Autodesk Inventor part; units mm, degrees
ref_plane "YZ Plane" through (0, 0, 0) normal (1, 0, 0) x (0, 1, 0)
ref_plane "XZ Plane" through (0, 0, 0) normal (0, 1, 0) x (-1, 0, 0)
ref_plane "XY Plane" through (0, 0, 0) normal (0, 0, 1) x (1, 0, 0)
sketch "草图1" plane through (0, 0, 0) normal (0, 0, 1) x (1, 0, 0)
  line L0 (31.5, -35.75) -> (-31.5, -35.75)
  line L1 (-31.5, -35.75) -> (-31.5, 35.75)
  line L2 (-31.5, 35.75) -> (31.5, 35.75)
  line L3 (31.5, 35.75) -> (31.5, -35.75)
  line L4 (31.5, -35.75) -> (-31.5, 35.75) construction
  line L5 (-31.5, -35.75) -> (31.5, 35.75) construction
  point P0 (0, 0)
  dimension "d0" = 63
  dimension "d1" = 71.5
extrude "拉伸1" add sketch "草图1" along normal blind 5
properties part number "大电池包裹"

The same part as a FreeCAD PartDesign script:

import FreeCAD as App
import Part
import Sketcher
from FreeCAD import Vector
Q = App.Units.Quantity

doc = App.newDocument("Part")
body = doc.addObject("PartDesign::Body", "Body")

sketch1 = body.newObject("Sketcher::SketchObject", "Sketch")
sketch1.AttachmentSupport = (doc.getObject("XY_Plane"), [""])
sketch1.MapMode = "FlatFace"
sketch1.addGeometry([
    Part.LineSegment(Vector(-32, -36, 0), Vector(32, -36, 0)),
    Part.LineSegment(Vector(32, -36, 0), Vector(32, 36, 0)),
    Part.LineSegment(Vector(32, 36, 0), Vector(-32, 36, 0)),
    Part.LineSegment(Vector(-32, 36, 0), Vector(-32, -36, 0)),
], False)
sketch1.addConstraint([
    Sketcher.Constraint("Coincident", 0, 2, 1, 1),
    Sketcher.Constraint("Coincident", 1, 2, 2, 1),
    Sketcher.Constraint("Coincident", 2, 2, 3, 1),
    Sketcher.Constraint("Coincident", 3, 2, 0, 1),
    Sketcher.Constraint("Horizontal", 0),
    Sketcher.Constraint("Vertical", 1),
    Sketcher.Constraint("Horizontal", 2),
    Sketcher.Constraint("Vertical", 3),
    Sketcher.Constraint("Symmetric", 0, 2, 2, 2, -1, 1),
    Sketcher.Constraint("DistanceX", 0, 1, 0, 2, Q("63 mm")),
    Sketcher.Constraint("DistanceY", 1, 1, 1, 2, Q("71.5 mm")),
])
pad1 = body.newObject("PartDesign::Pad", "Pad")
pad1.Profile = sketch1
pad1.Length = 5

doc.recompute()
